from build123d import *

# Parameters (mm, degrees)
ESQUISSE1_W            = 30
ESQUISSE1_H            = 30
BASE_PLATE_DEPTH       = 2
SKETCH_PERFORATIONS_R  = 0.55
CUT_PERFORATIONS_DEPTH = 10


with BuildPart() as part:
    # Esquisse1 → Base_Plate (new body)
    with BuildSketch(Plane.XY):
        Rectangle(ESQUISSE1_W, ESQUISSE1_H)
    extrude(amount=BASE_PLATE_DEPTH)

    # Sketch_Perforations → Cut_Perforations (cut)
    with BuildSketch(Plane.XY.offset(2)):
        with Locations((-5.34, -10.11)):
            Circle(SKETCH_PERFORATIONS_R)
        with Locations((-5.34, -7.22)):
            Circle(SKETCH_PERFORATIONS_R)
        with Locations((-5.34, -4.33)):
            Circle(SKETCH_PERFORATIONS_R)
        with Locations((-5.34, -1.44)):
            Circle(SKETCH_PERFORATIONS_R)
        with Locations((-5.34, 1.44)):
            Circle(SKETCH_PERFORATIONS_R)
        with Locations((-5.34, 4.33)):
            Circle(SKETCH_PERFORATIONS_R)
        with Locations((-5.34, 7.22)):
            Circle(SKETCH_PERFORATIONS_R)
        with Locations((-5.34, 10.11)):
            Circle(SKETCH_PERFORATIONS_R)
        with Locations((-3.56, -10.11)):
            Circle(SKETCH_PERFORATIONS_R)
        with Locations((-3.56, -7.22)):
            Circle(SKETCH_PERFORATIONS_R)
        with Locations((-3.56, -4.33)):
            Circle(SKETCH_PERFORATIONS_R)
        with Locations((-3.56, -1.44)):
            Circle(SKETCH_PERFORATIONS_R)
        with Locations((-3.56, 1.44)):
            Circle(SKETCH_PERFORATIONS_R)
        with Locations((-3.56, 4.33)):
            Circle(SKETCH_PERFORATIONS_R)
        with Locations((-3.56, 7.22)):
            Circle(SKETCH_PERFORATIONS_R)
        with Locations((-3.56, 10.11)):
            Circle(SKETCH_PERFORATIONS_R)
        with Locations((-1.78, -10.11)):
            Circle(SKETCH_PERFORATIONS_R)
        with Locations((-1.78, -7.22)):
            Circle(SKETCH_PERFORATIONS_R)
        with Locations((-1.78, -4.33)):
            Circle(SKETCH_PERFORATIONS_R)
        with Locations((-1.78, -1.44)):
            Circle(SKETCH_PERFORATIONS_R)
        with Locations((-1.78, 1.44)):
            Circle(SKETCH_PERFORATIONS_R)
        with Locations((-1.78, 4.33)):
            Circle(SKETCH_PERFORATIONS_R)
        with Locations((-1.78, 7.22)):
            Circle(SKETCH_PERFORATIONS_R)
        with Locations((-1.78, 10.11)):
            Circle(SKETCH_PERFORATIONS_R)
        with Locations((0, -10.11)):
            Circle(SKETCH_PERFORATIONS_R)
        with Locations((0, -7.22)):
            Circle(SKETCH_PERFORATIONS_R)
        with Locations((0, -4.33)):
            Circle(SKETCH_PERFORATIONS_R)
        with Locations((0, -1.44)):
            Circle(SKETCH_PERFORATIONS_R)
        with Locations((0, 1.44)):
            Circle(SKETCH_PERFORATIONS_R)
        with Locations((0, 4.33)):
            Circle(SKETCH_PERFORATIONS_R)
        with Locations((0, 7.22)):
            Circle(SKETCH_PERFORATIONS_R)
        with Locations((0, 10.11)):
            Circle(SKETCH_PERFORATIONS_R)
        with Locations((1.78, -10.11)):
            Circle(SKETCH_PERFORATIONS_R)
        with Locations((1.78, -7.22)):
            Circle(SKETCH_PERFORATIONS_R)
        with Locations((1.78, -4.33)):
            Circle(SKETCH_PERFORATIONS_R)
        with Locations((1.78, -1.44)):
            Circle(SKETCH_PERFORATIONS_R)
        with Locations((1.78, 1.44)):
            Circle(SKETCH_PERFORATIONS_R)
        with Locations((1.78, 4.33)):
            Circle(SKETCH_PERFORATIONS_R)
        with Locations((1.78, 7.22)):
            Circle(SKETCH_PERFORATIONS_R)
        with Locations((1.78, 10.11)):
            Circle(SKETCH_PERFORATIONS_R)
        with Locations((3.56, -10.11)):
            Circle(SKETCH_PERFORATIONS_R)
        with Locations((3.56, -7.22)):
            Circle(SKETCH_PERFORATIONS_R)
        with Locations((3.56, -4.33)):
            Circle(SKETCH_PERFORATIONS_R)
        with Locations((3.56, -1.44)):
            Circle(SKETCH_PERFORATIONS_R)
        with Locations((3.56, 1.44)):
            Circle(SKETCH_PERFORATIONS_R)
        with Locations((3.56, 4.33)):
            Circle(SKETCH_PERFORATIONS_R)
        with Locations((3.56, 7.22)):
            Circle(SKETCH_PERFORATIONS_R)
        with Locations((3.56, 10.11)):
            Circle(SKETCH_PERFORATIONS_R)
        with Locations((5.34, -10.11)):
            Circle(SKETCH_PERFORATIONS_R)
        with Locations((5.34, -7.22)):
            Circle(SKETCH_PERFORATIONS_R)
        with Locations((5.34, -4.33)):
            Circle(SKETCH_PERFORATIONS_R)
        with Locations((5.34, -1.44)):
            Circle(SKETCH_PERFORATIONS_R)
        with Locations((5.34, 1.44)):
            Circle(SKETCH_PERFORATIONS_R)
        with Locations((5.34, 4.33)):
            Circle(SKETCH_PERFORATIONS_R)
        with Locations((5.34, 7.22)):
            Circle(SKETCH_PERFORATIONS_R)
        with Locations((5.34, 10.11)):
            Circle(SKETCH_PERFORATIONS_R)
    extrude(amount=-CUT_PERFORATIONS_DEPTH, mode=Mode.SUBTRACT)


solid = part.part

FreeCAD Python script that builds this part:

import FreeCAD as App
import Part
import Sketcher
from FreeCAD import Vector

doc = App.newDocument("Part")
body = doc.addObject("PartDesign::Body", "Body")

sketch1 = doc.addObject("Sketcher::SketchObject", "Sketch")
body.addObject(sketch1)
sketch1.AttachmentSupport = (doc.XY_Plane, [""])
sketch1.MapMode = "FlatFace"
sketch1.addGeometry([
    Part.LineSegment(Vector(-15, 15, 0), Vector(-15, -15, 0)),
    Part.LineSegment(Vector(-15, -15, 0), Vector(15, -15, 0)),
    Part.LineSegment(Vector(15, -15, 0), Vector(15, 15, 0)),
    Part.LineSegment(Vector(15, 15, 0), Vector(-15, 15, 0)),
], False)
sketch1.addConstraint([
    Sketcher.Constraint("Coincident", 0, 2, 1, 1),
    Sketcher.Constraint("Coincident", 1, 2, 2, 1),
    Sketcher.Constraint("Coincident", 2, 2, 3, 1),
    Sketcher.Constraint("Coincident", 3, 2, 0, 1),
    Sketcher.Constraint("Vertical", 0),
    Sketcher.Constraint("Horizontal", 1),
    Sketcher.Constraint("Vertical", 2),
    Sketcher.Constraint("Horizontal", 3),
    Sketcher.Constraint("Symmetric", 0, 2, 2, 2, -1, 1),
    Sketcher.Constraint("Equal", 3, 0),
    Sketcher.Constraint("DistanceX", 1, 1, 1, 2, 30.0),
])
pad1 = doc.addObject("PartDesign::Pad", "Pad")
body.addObject(pad1)
pad1.Profile = sketch1
pad1.Length = 2

sketch2 = doc.addObject("Sketcher::SketchObject", "Sketch001")
body.addObject(sketch2)
sketch2.AttachmentSupport = (doc.XY_Plane, [""])
sketch2.MapMode = "FlatFace"
sketch2.AttachmentOffset = App.Placement(Vector(0, 0, 2), App.Rotation())
sketch2.addGeometry([
    Part.Circle(Vector(-5.34, -10.11, 0), Vector(0, 0, 1), 0.55),
    Part.Circle(Vector(-5.34, -7.22, 0), Vector(0, 0, 1), 0.55),
    Part.Circle(Vector(-5.34, -4.33, 0), Vector(0, 0, 1), 0.55),
    Part.Circle(Vector(-5.34, -1.44, 0), Vector(0, 0, 1), 0.55),
    Part.Circle(Vector(-5.34, 1.44, 0), Vector(0, 0, 1), 0.55),
    Part.Circle(Vector(-5.34, 4.33, 0), Vector(0, 0, 1), 0.55),
    Part.Circle(Vector(-5.34, 7.22, 0), Vector(0, 0, 1), 0.55),
    Part.Circle(Vector(-5.34, 10.11, 0), Vector(0, 0, 1), 0.55),
    Part.Circle(Vector(-3.56, -10.11, 0), Vector(0, 0, 1), 0.55),
    Part.Circle(Vector(-3.56, -7.22, 0), Vector(0, 0, 1), 0.55),
    Part.Circle(Vector(-3.56, -4.33, 0), Vector(0, 0, 1), 0.55),
    Part.Circle(Vector(-3.56, -1.44, 0), Vector(0, 0, 1), 0.55),
    Part.Circle(Vector(-3.56, 1.44, 0), Vector(0, 0, 1), 0.55),
    Part.Circle(Vector(-3.56, 4.33, 0), Vector(0, 0, 1), 0.55),
    Part.Circle(Vector(-3.56, 7.22, 0), Vector(0, 0, 1), 0.55),
    Part.Circle(Vector(-3.56, 10.11, 0), Vector(0, 0, 1), 0.55),
    Part.Circle(Vector(-1.78, -10.11, 0), Vector(0, 0, 1), 0.55),
    Part.Circle(Vector(-1.78, -7.22, 0), Vector(0, 0, 1), 0.55),
    Part.Circle(Vector(-1.78, -4.33, 0), Vector(0, 0, 1), 0.55),
    Part.Circle(Vector(-1.78, -1.44, 0), Vector(0, 0, 1), 0.55),
    Part.Circle(Vector(-1.78, 1.44, 0), Vector(0, 0, 1), 0.55),
    Part.Circle(Vector(-1.78, 4.33, 0), Vector(0, 0, 1), 0.55),
    Part.Circle(Vector(-1.78, 7.22, 0), Vector(0, 0, 1), 0.55),
    Part.Circle(Vector(-1.78, 10.11, 0), Vector(0, 0, 1), 0.55),
    Part.Circle(Vector(0, -10.11, 0), Vector(0, 0, 1), 0.55),
    Part.Circle(Vector(0, -7.22, 0), Vector(0, 0, 1), 0.55),
    Part.Circle(Vector(0, -4.33, 0), Vector(0, 0, 1), 0.55),
    Part.Circle(Vector(0, -1.44, 0), Vector(0, 0, 1), 0.55),
    Part.Circle(Vector(0, 1.44, 0), Vector(0, 0, 1), 0.55),
    Part.Circle(Vector(0, 4.33, 0), Vector(0, 0, 1), 0.55),
    Part.Circle(Vector(0, 7.22, 0), Vector(0, 0, 1), 0.55),
    Part.Circle(Vector(0, 10.11, 0), Vector(0, 0, 1), 0.55),
    Part.Circle(Vector(1.78, -10.11, 0), Vector(0, 0, 1), 0.55),
    Part.Circle(Vector(1.78, -7.22, 0), Vector(0, 0, 1), 0.55),
    Part.Circle(Vector(1.78, -4.33, 0), Vector(0, 0, 1), 0.55),
    Part.Circle(Vector(1.78, -1.44, 0), Vector(0, 0, 1), 0.55),
    Part.Circle(Vector(1.78, 1.44, 0), Vector(0, 0, 1), 0.55),
    Part.Circle(Vector(1.78, 4.33, 0), Vector(0, 0, 1), 0.55),
    Part.Circle(Vector(1.78, 7.22, 0), Vector(0, 0, 1), 0.55),
    Part.Circle(Vector(1.78, 10.11, 0), Vector(0, 0, 1), 0.55),
    Part.Circle(Vector(3.56, -10.11, 0), Vector(0, 0, 1), 0.55),
    Part.Circle(Vector(3.56, -7.22, 0), Vector(0, 0, 1), 0.55),
    Part.Circle(Vector(3.56, -4.33, 0), Vector(0, 0, 1), 0.55),
    Part.Circle(Vector(3.56, -1.44, 0), Vector(0, 0, 1), 0.55),
    Part.Circle(Vector(3.56, 1.44, 0), Vector(0, 0, 1), 0.55),
    Part.Circle(Vector(3.56, 4.33, 0), Vector(0, 0, 1), 0.55),
    Part.Circle(Vector(3.56, 7.22, 0), Vector(0, 0, 1), 0.55),
    Part.Circle(Vector(3.56, 10.11, 0), Vector(0, 0, 1), 0.55),
    Part.Circle(Vector(5.34, -10.11, 0), Vector(0, 0, 1), 0.55),
    Part.Circle(Vector(5.34, -7.22, 0), Vector(0, 0, 1), 0.55),
    Part.Circle(Vector(5.34, -4.33, 0), Vector(0, 0, 1), 0.55),
    Part.Circle(Vector(5.34, -1.44, 0), Vector(0, 0, 1), 0.55),
    Part.Circle(Vector(5.34, 1.44, 0), Vector(0, 0, 1), 0.55),
    Part.Circle(Vector(5.34, 4.33, 0), Vector(0, 0, 1), 0.55),
    Part.Circle(Vector(5.34, 7.22, 0), Vector(0, 0, 1), 0.55),
    Part.Circle(Vector(5.34, 10.11, 0), Vector(0, 0, 1), 0.55),
], False)
sketch2.addConstraint([
    Sketcher.Constraint("Equal", 0, 1),
    Sketcher.Constraint("Equal", 1, 2),
    Sketcher.Constraint("Equal", 2, 3),
    Sketcher.Constraint("Equal", 3, 4),
    Sketcher.Constraint("Equal", 4, 5),
    Sketcher.Constraint("Equal", 5, 6),
    Sketcher.Constraint("Equal", 6, 7),
    Sketcher.Constraint("Equal", 7, 8),
    Sketcher.Constraint("Equal", 8, 9),
    Sketcher.Constraint("Equal", 9, 10),
    Sketcher.Constraint("Equal", 10, 11),
    Sketcher.Constraint("Equal", 11, 12),
    Sketcher.Constraint("Equal", 12, 13),
    Sketcher.Constraint("Equal", 13, 14),
    Sketcher.Constraint("Equal", 14, 15),
    Sketcher.Constraint("Equal", 15, 16),
    Sketcher.Constraint("Equal", 16, 17),
    Sketcher.Constraint("Equal", 17, 18),
    Sketcher.Constraint("Equal", 18, 19),
    Sketcher.Constraint("Equal", 19, 20),
    Sketcher.Constraint("Equal", 20, 21),
    Sketcher.Constraint("Equal", 21, 22),
    Sketcher.Constraint("Equal", 22, 23),
    Sketcher.Constraint("Equal", 23, 24),
    Sketcher.Constraint("Equal", 24, 25),
    Sketcher.Constraint("Equal", 25, 26),
    Sketcher.Constraint("Equal", 26, 27),
    Sketcher.Constraint("Equal", 27, 28),
    Sketcher.Constraint("Equal", 28, 29),
    Sketcher.Constraint("Equal", 29, 30),
    Sketcher.Constraint("Equal", 30, 31),
    Sketcher.Constraint("Equal", 31, 32),
    Sketcher.Constraint("Equal", 32, 33),
    Sketcher.Constraint("Equal", 33, 34),
    Sketcher.Constraint("Equal", 34, 35),
    Sketcher.Constraint("Equal", 35, 36),
    Sketcher.Constraint("Equal", 36, 37),
    Sketcher.Constraint("Equal", 37, 38),
    Sketcher.Constraint("Equal", 38, 39),
    Sketcher.Constraint("Equal", 39, 40),
    Sketcher.Constraint("Equal", 40, 41),
    Sketcher.Constraint("Equal", 41, 42),
    Sketcher.Constraint("Equal", 42, 43),
    Sketcher.Constraint("Equal", 43, 44),
    Sketcher.Constraint("Equal", 44, 45),
    Sketcher.Constraint("Equal", 45, 46),
    Sketcher.Constraint("Equal", 46, 47),
    Sketcher.Constraint("Equal", 47, 48),
    Sketcher.Constraint("Equal", 48, 49),
    Sketcher.Constraint("Equal", 49, 50),
    Sketcher.Constraint("Equal", 50, 51),
    Sketcher.Constraint("Equal", 51, 52),
    Sketcher.Constraint("Equal", 52, 53),
    Sketcher.Constraint("Equal", 53, 54),
    Sketcher.Constraint("Equal", 54, 55),
    Sketcher.Constraint("Symmetric", 27, 3, 28, 3, -1, 1),
    Sketcher.Constraint("Symmetric", 26, 3, 29, 3, -1, 1),
    Sketcher.Constraint("Symmetric", 25, 3, 30, 3, -1, 1),
    Sketcher.Constraint("Symmetric", 24, 3, 31, 3, -1, 1),
    Sketcher.Constraint("Symmetric", 23, 3, 32, 3, -1, 1),
    Sketcher.Constraint("Symmetric", 22, 3, 33, 3, -1, 1),
    Sketcher.Constraint("Symmetric", 21, 3, 34, 3, -1, 1),
    Sketcher.Constraint("Symmetric", 20, 3, 35, 3, -1, 1),
    Sketcher.Constraint("Symmetric", 19, 3, 36, 3, -1, 1),
    Sketcher.Constraint("Symmetric", 18, 3, 37, 3, -1, 1),
    Sketcher.Constraint("Symmetric", 17, 3, 38, 3, -1, 1),
    Sketcher.Constraint("Symmetric", 16, 3, 39, 3, -1, 1),
    Sketcher.Constraint("Symmetric", 15, 3, 40, 3, -1, 1),
    Sketcher.Constraint("Symmetric", 14, 3, 41, 3, -1, 1),
    Sketcher.Constraint("Symmetric", 13, 3, 42, 3, -1, 1),
    Sketcher.Constraint("Symmetric", 12, 3, 43, 3, -1, 1),
    Sketcher.Constraint("Symmetric", 11, 3, 44, 3, -1, 1),
    Sketcher.Constraint("Symmetric", 10, 3, 45, 3, -1, 1),
    Sketcher.Constraint("Symmetric", 9, 3, 46, 3, -1, 1),
    Sketcher.Constraint("Symmetric", 8, 3, 47, 3, -1, 1),
    Sketcher.Constraint("Symmetric", 7, 3, 48, 3, -1, 1),
    Sketcher.Constraint("Symmetric", 6, 3, 49, 3, -1, 1),
    Sketcher.Constraint("Symmetric", 5, 3, 50, 3, -1, 1),
    Sketcher.Constraint("Symmetric", 4, 3, 51, 3, -1, 1),
    Sketcher.Constraint("Symmetric", 3, 3, 52, 3, -1, 1),
    Sketcher.Constraint("Symmetric", 2, 3, 53, 3, -1, 1),
    Sketcher.Constraint("Symmetric", 1, 3, 54, 3, -1, 1),
    Sketcher.Constraint("Symmetric", 0, 3, 55, 3, -1, 1),
    Sketcher.Constraint("Symmetric", 16, 3, 32, 3, -2),
    Sketcher.Constraint("Symmetric", 17, 3, 33, 3, -2),
    Sketcher.Constraint("Symmetric", 18, 3, 34, 3, -2),
    Sketcher.Constraint("Symmetric", 19, 3, 35, 3, -2),
    Sketcher.Constraint("Symmetric", 8, 3, 40, 3, -2),
    Sketcher.Constraint("Symmetric", 9, 3, 41, 3, -2),
    Sketcher.Constraint("Symmetric", 10, 3, 42, 3, -2),
    Sketcher.Constraint("Symmetric", 11, 3, 43, 3, -2),
    Sketcher.Constraint("Symmetric", 0, 3, 48, 3, -2),
    Sketcher.Constraint("Symmetric", 1, 3, 49, 3, -2),
    Sketcher.Constraint("Symmetric", 2, 3, 50, 3, -2),
    Sketcher.Constraint("Symmetric", 3, 3, 51, 3, -2),
    Sketcher.Constraint("PointOnObject", 24, 3, -2),
    Sketcher.Constraint("PointOnObject", 25, 3, -2),
    Sketcher.Constraint("PointOnObject", 26, 3, -2),
    Sketcher.Constraint("PointOnObject", 27, 3, -2),
    Sketcher.Constraint("Horizontal", 0, 3, 8, 3),
    Sketcher.Constraint("Horizontal", 1, 3, 9, 3),
    Sketcher.Constraint("Horizontal", 2, 3, 10, 3),
    Sketcher.Constraint("Horizontal", 3, 3, 11, 3),
    Sketcher.Constraint("Horizontal", 8, 3, 16, 3),
    Sketcher.Constraint("Horizontal", 9, 3, 17, 3),
    Sketcher.Constraint("Horizontal", 10, 3, 18, 3),
    Sketcher.Constraint("Horizontal", 11, 3, 19, 3),
    Sketcher.Constraint("Horizontal", 16, 3, 24, 3),
    Sketcher.Constraint("Horizontal", 17, 3, 25, 3),
    Sketcher.Constraint("Horizontal", 18, 3, 26, 3),
    Sketcher.Constraint("Horizontal", 19, 3, 27, 3),
    Sketcher.Constraint("Vertical", 0, 3, 1, 3),
    Sketcher.Constraint("Vertical", 1, 3, 2, 3),
    Sketcher.Constraint("Vertical", 2, 3, 3, 3),
    Sketcher.Constraint("Vertical", 8, 3, 9, 3),
    Sketcher.Constraint("Vertical", 9, 3, 10, 3),
    Sketcher.Constraint("Vertical", 10, 3, 11, 3),
    Sketcher.Constraint("Vertical", 16, 3, 17, 3),
    Sketcher.Constraint("Vertical", 17, 3, 18, 3),
    Sketcher.Constraint("Vertical", 18, 3, 19, 3),
    Sketcher.Constraint("Diameter", 0, 1.1),
    Sketcher.Constraint("DistanceX", 0, 3, -1, 1, 5.34),
    Sketcher.Constraint("DistanceY", 0, 3, -1, 1, 10.11),
    Sketcher.Constraint("DistanceY", 1, 3, -1, 1, 7.22),
    Sketcher.Constraint("DistanceY", 2, 3, -1, 1, 4.33),
    Sketcher.Constraint("DistanceY", 3, 3, -1, 1, 1.44),
    Sketcher.Constraint("DistanceX", 8, 3, -1, 1, 3.56),
    Sketcher.Constraint("DistanceX", 16, 3, -1, 1, 1.78),
])
pocket1 = doc.addObject("PartDesign::Pocket", "Pocket")
body.addObject(pocket1)
pocket1.Profile = sketch2
pocket1.Length = 10

doc.recompute()
